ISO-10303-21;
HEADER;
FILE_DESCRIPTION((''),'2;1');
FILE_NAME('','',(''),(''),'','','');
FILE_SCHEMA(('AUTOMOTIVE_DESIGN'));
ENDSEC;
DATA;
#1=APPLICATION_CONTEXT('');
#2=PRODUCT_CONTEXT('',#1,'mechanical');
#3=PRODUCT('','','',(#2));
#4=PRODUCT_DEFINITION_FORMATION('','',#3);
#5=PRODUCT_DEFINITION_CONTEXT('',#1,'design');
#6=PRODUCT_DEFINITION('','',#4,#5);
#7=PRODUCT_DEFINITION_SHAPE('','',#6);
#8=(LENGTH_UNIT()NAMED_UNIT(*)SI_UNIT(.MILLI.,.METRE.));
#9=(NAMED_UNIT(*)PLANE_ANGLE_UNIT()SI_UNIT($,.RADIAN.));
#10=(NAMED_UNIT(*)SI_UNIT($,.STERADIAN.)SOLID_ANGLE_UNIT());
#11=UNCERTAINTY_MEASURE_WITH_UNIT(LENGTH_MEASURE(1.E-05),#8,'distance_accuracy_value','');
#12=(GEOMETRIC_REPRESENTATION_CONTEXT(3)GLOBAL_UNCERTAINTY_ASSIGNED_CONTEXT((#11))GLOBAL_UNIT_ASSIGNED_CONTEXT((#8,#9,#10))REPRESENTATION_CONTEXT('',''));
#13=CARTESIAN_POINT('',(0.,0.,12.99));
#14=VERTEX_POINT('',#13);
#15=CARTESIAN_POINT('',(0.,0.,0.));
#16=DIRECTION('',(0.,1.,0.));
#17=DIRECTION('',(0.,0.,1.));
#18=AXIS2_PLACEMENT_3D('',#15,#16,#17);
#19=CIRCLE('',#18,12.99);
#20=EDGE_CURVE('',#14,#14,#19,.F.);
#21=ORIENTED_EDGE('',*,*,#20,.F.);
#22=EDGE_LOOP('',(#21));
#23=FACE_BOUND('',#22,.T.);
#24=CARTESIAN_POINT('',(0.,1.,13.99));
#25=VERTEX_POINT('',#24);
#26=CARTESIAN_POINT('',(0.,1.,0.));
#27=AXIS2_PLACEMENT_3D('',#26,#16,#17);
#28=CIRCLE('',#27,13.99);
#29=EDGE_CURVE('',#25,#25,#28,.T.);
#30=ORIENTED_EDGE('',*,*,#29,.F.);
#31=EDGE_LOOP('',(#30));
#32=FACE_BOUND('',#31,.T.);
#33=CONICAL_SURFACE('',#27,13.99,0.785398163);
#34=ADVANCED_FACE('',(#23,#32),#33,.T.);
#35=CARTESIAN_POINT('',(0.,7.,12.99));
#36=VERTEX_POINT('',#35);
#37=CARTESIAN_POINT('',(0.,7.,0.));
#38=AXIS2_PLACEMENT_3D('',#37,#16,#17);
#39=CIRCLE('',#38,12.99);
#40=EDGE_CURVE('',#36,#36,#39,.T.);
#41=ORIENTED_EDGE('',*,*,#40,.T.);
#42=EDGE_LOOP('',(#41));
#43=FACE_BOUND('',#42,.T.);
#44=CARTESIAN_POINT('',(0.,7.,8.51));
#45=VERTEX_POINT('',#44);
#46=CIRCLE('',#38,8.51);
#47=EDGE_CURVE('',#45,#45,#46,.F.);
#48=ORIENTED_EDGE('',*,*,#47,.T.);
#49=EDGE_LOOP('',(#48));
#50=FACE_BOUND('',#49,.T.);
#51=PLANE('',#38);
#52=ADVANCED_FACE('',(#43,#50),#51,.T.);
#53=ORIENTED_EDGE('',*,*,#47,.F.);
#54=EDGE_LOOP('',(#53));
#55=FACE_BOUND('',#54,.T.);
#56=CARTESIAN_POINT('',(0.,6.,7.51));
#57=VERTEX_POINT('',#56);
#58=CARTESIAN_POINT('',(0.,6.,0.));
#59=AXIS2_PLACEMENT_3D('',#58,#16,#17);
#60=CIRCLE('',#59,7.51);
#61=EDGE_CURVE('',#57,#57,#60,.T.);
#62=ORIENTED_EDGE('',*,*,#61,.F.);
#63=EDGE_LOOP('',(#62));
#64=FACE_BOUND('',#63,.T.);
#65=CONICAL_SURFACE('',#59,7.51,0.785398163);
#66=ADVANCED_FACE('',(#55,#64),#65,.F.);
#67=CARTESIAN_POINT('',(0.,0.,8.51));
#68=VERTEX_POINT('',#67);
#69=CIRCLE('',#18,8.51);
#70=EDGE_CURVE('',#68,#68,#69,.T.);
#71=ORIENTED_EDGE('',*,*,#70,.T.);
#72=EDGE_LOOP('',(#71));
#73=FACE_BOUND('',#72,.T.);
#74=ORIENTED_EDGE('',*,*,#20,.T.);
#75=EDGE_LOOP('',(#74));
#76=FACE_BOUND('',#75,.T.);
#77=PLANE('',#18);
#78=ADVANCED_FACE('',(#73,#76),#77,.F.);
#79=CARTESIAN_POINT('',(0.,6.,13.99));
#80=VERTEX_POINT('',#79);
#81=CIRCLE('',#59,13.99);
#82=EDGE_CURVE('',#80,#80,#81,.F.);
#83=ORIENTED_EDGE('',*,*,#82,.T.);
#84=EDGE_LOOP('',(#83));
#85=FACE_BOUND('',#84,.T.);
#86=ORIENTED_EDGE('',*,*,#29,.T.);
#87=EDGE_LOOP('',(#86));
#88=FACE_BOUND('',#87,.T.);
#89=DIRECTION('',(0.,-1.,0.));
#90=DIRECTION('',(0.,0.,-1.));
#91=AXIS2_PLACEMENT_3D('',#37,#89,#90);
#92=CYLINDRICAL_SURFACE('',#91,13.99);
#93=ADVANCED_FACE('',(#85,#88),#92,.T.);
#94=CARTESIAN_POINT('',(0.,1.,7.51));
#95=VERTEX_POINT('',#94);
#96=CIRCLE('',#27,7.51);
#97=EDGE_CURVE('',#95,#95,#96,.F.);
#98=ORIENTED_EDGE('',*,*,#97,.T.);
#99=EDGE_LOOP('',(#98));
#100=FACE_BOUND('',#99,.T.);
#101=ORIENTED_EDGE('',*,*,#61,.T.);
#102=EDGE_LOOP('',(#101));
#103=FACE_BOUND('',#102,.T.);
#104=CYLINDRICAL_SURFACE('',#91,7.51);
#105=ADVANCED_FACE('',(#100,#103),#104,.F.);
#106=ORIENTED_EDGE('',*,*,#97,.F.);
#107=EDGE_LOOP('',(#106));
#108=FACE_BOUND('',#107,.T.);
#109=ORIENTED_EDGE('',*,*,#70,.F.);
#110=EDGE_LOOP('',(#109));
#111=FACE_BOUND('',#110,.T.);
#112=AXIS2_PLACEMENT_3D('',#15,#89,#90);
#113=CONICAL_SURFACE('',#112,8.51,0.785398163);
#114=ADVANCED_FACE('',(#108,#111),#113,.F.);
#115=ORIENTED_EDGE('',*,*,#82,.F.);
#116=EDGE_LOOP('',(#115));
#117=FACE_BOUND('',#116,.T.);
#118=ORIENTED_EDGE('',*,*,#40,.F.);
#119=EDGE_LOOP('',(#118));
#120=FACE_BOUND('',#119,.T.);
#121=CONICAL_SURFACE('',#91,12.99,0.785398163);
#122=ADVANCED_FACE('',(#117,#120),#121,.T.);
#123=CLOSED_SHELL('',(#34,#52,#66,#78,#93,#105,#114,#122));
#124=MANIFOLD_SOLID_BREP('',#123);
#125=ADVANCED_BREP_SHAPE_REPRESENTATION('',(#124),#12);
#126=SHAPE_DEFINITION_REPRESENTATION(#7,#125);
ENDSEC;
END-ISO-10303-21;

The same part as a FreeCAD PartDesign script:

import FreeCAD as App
import Part
import Sketcher

V = App.Vector


def edges_at(feature, points):
    """Names of the edges that pass closest to the given points."""
    edges = feature.Shape.Edges
    near = lambda p: min(range(len(edges)), key=lambda i: edges[i].distToShape(Part.Vertex(*p))[0])
    return sorted({f"Edge{near(p) + 1}" for p in points})

doc = App.newDocument("Part")
body = doc.addObject("PartDesign::Body", "Body")

sketch1 = doc.addObject("Sketcher::SketchObject", "Sketch")
body.addObject(sketch1)
sketch1.AttachmentSupport = (doc.XZ_Plane, [""])
sketch1.MapMode = "FlatFace"
sketch1.addGeometry([
    Part.Circle(V(0, 0, 0), V(0, 0, 1), 14),
    Part.Circle(V(0, 0, 0), V(0, 0, 1), 8),
], False)
sketch1.addConstraint([
    Sketcher.Constraint("Coincident", 0, 3, -1, 1),
    Sketcher.Constraint("Coincident", 1, 3, -1, 1),
    Sketcher.Constraint("Diameter", 0, 27.98),
    Sketcher.Constraint("Diameter", 1, 15.02),
])
pad1 = doc.addObject("PartDesign::Pad", "Pad")
body.addObject(pad1)
pad1.Profile = sketch1
pad1.Length = 7
pad1.Reversed = True
doc.recompute()

chamfer = doc.addObject("PartDesign::Chamfer", "Chamfer")
body.addObject(chamfer)
chamfer.Base = (pad1, edges_at(pad1, [
    (0, 0, -13.99),
    (0, 7, -13.99),
    (0, 0, -7.51),
    (0, 7, -7.51),
]))
chamfer.Size = 1

doc.recompute()
